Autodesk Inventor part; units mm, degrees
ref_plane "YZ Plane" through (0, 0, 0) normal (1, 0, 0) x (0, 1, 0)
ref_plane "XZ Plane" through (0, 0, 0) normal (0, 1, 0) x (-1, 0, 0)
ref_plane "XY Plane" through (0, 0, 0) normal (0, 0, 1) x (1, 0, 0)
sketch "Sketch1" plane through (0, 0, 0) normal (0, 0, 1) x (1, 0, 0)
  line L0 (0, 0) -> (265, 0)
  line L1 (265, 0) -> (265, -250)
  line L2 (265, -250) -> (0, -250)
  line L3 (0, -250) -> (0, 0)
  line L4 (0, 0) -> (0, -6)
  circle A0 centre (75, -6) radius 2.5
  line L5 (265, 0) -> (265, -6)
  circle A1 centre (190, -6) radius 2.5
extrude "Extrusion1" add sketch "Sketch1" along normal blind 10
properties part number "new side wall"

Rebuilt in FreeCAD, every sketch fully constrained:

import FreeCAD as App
import Part
import Sketcher
from FreeCAD import Vector

doc = App.newDocument("Part")
params = doc.addObject("Spreadsheet::Sheet", "Params")
for row, (alias, value) in enumerate([
    ("sketch1_diameter", "5 mm"),
    ("sketch1_width", "265 mm"),
    ("sketch1_height", "250 mm"),
    ("pad1_length", "10 mm"),
], start=1):
    params.set(f"A{row}", alias)
    params.set(f"B{row}", "=" + value)
    params.setAlias(f"B{row}", alias)

body = doc.addObject("PartDesign::Body", "Body")

sketch1 = body.newObject("Sketcher::SketchObject", "Sketch")
sketch1.AttachmentSupport = (doc.getObject("XY_Plane"), [""])
sketch1.MapMode = "FlatFace"
sketch1.addGeometry([
    Part.LineSegment(Vector(265, 0, 0), Vector(0, 0, 0)),
    Part.LineSegment(Vector(0, 0, 0), Vector(0, -250, 0)),
    Part.LineSegment(Vector(0, -250, 0), Vector(265, -250, 0)),
    Part.LineSegment(Vector(265, -250, 0), Vector(265, 0, 0)),
    Part.Circle(Vector(75, -6, 0), Vector(0, 0, 1), 2.5),
    Part.Circle(Vector(190, -6, 0), Vector(0, 0, 1), 2.5),
], False)
sketch1.addConstraint([
    Sketcher.Constraint("Coincident", 0, 2, 1, 1),
    Sketcher.Constraint("Coincident", 1, 2, 2, 1),
    Sketcher.Constraint("Coincident", 2, 2, 3, 1),
    Sketcher.Constraint("Coincident", 3, 2, 0, 1),
    Sketcher.Constraint("Horizontal", 0),
    Sketcher.Constraint("Vertical", 1),
    Sketcher.Constraint("Horizontal", 2),
    Sketcher.Constraint("Vertical", 3),
    Sketcher.Constraint("Coincident", 0, 2, -1, 1),
    Sketcher.Constraint("Equal", 4, 5),
    Sketcher.Constraint("Horizontal", 4, 3, 5, 3),
    Sketcher.Constraint("Diameter", 4, 5.0),
    Sketcher.Constraint("DistanceX", 0, 2, 0, 1, 265.0),
    Sketcher.Constraint("DistanceY", 1, 2, 1, 1, 250.0),
    Sketcher.Constraint("DistanceX", -1, 1, 4, 3, 75.0),
    Sketcher.Constraint("DistanceY", 4, 3, -1, 1, 6.0),
    Sketcher.Constraint("DistanceX", -1, 1, 5, 3, 190.0),
])
sketch1.setExpression("Constraints[11]", "Params.sketch1_diameter")
sketch1.setExpression("Constraints[12]", "Params.sketch1_width")
sketch1.setExpression("Constraints[13]", "Params.sketch1_height")
pad1 = body.newObject("PartDesign::Pad", "Pad")
pad1.Profile = sketch1
pad1.setExpression("Length", "Params.pad1_length")

doc.recompute()
